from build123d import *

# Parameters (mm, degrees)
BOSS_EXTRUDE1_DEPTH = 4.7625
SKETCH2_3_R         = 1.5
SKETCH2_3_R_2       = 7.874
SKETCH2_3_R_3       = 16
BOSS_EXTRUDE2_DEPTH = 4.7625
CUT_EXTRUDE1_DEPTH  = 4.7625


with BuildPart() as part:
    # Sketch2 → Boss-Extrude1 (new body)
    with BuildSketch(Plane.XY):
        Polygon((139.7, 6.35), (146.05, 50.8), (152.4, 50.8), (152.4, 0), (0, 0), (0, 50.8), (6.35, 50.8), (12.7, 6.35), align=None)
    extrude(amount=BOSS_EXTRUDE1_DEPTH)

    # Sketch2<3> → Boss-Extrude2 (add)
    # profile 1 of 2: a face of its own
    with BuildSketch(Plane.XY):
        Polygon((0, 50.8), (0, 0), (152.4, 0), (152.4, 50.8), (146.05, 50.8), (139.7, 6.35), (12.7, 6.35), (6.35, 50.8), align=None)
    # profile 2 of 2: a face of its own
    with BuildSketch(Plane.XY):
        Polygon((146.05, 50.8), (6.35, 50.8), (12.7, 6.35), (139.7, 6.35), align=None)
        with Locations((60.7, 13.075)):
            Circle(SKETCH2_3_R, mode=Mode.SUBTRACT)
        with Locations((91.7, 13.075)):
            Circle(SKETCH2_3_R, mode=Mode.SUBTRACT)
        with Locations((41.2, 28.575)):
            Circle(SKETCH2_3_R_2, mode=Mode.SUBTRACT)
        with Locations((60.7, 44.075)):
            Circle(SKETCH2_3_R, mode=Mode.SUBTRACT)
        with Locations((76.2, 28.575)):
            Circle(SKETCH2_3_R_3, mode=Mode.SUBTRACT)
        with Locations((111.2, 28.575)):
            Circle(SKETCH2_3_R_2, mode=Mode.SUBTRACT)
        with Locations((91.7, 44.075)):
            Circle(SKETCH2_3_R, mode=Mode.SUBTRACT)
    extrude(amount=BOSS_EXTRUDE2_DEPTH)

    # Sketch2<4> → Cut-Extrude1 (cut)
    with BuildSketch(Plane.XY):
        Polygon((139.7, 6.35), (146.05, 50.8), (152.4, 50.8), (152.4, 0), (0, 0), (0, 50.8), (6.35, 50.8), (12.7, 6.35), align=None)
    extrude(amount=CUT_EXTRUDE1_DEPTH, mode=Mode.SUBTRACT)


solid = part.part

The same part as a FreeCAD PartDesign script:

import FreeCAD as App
import Part
import Sketcher
Q = App.Units.Quantity

doc = App.newDocument("Part")
body = doc.addObject("PartDesign::Body", "Body")

# Sketch on XY plane
sketch1 = body.newObject("Sketcher::SketchObject", "Sketch")
sketch1.AttachmentSupport = (doc.getObject("XY_Plane"), [""])
sketch1.MapMode = "FlatFace"
sketch1.addGeometry(Part.LineSegment(App.Vector(146, 51, 0), App.Vector(140, 6, 0)), False)
sketch1.addGeometry(Part.LineSegment(App.Vector(140, 6, 0), App.Vector(13, 6, 0)), False)
sketch1.addGeometry(Part.LineSegment(App.Vector(13, 6, 0), App.Vector(6, 51, 0)), False)
sketch1.addGeometry(Part.LineSegment(App.Vector(6, 51, 0), App.Vector(0, 51, 0)), False)
sketch1.addGeometry(Part.LineSegment(App.Vector(0, 51, 0), App.Vector(0, 0, 0)), False)
sketch1.addGeometry(Part.LineSegment(App.Vector(0, 0, 0), App.Vector(152, 0, 0)), False)
sketch1.addGeometry(Part.LineSegment(App.Vector(152, 0, 0), App.Vector(152, 51, 0)), False)
sketch1.addGeometry(Part.LineSegment(App.Vector(152, 51, 0), App.Vector(146, 51, 0)), False)
sketch1.addConstraint(Sketcher.Constraint("Coincident", 0, 2, 1, 1))
sketch1.addConstraint(Sketcher.Constraint("Coincident", 1, 2, 2, 1))
sketch1.addConstraint(Sketcher.Constraint("Coincident", 2, 2, 3, 1))
sketch1.addConstraint(Sketcher.Constraint("Coincident", 3, 2, 4, 1))
sketch1.addConstraint(Sketcher.Constraint("Coincident", 4, 2, 5, 1))
sketch1.addConstraint(Sketcher.Constraint("Coincident", 5, 2, 6, 1))
sketch1.addConstraint(Sketcher.Constraint("Coincident", 6, 2, 7, 1))
sketch1.addConstraint(Sketcher.Constraint("Coincident", 7, 2, 0, 1))
sketch1.addConstraint(Sketcher.Constraint("Horizontal", 1))
sketch1.addConstraint(Sketcher.Constraint("Horizontal", 3))
sketch1.addConstraint(Sketcher.Constraint("Vertical", 4))
sketch1.addConstraint(Sketcher.Constraint("Horizontal", 5))
sketch1.addConstraint(Sketcher.Constraint("Vertical", 6))
sketch1.addConstraint(Sketcher.Constraint("Horizontal", 7))
sketch1.addConstraint(Sketcher.Constraint("Coincident", 4, 2, -1, 1))
sketch1.addConstraint(Sketcher.Constraint("Horizontal", 3, 2, 6, 2))
sketch1.addConstraint(Sketcher.Constraint("Equal", 3, 7))
sketch1.addConstraint(Sketcher.Constraint("Equal", 0, 2))
sketch1.addConstraint(Sketcher.Constraint("DistanceX", 1, 2, 1, 1, Q("5 in")))
sketch1.addConstraint(Sketcher.Constraint("DistanceX", 5, 1, 5, 2, Q("6 in")))
sketch1.addConstraint(Sketcher.Constraint("DistanceY", 4, 2, 4, 1, Q("2 in")))
sketch1.addConstraint(Sketcher.Constraint("DistanceX", 3, 2, 3, 1, Q("0.25 in")))
sketch1.addConstraint(Sketcher.Constraint("DistanceY", -1, 1, 0, 2, Q("0.25 in")))
pad1 = body.newObject("PartDesign::Pad", "Pad")
pad1.Profile = sketch1
pad1.Length = Q("0.1875 in")

# Sketch on XY plane
sketch2 = body.newObject("Sketcher::SketchObject", "Sketch001")
sketch2.AttachmentSupport = (doc.getObject("XY_Plane"), [""])
sketch2.MapMode = "FlatFace"
sketch2.addGeometry(Part.LineSegment(App.Vector(0, 50.8, 0), App.Vector(0, 0, 0)), False)
sketch2.addGeometry(Part.LineSegment(App.Vector(0, 0, 0), App.Vector(152.4, 0, 0)), False)
sketch2.addGeometry(Part.LineSegment(App.Vector(152.4, 0, 0), App.Vector(152.4, 50.8, 0)), False)
sketch2.addGeometry(Part.LineSegment(App.Vector(152.4, 50.8, 0), App.Vector(0, 50.8, 0)), False)
sketch2.addGeometry(Part.Circle(App.Vector(91.7, 44.1, 0), App.Vector(0, 0, 1), 1.5), False)
sketch2.addGeometry(Part.Circle(App.Vector(76.2, 28.6, 0), App.Vector(0, 0, 1), 16), False)
sketch2.addGeometry(Part.Circle(App.Vector(111.2, 28.6, 0), App.Vector(0, 0, 1), 7.9), False)
sketch2.addGeometry(Part.Circle(App.Vector(60.7, 13.1, 0), App.Vector(0, 0, 1), 1.5), False)
sketch2.addGeometry(Part.Circle(App.Vector(91.7, 13.1, 0), App.Vector(0, 0, 1), 1.5), False)
sketch2.addGeometry(Part.Circle(App.Vector(41.2, 28.6, 0), App.Vector(0, 0, 1), 7.9), False)
sketch2.addGeometry(Part.Circle(App.Vector(60.7, 44.1, 0), App.Vector(0, 0, 1), 1.5), False)
sketch2.addConstraint(Sketcher.Constraint("Coincident", 0, 2, 1, 1))
sketch2.addConstraint(Sketcher.Constraint("Coincident", 1, 2, 2, 1))
sketch2.addConstraint(Sketcher.Constraint("Coincident", 2, 2, 3, 1))
sketch2.addConstraint(Sketcher.Constraint("Coincident", 3, 2, 0, 1))
sketch2.addConstraint(Sketcher.Constraint("Vertical", 0))
sketch2.addConstraint(Sketcher.Constraint("Horizontal", 1))
sketch2.addConstraint(Sketcher.Constraint("Vertical", 2))
sketch2.addConstraint(Sketcher.Constraint("Horizontal", 3))
sketch2.addConstraint(Sketcher.Constraint("Coincident", 0, 2, -1, 1))
sketch2.addConstraint(Sketcher.Constraint("Equal", 4, 7))
sketch2.addConstraint(Sketcher.Constraint("Equal", 7, 8))
sketch2.addConstraint(Sketcher.Constraint("Equal", 6, 9))
sketch2.addConstraint(Sketcher.Constraint("Equal", 8, 10))
sketch2.addConstraint(Sketcher.Constraint("Horizontal", 5, 3, 6, 3))
sketch2.addConstraint(Sketcher.Constraint("Horizontal", 7, 3, 8, 3))
sketch2.addConstraint(Sketcher.Constraint("Horizontal", 6, 3, 9, 3))
sketch2.addConstraint(Sketcher.Constraint("Horizontal", 4, 3, 10, 3))
sketch2.addConstraint(Sketcher.Constraint("Vertical", 4, 3, 8, 3))
sketch2.addConstraint(Sketcher.Constraint("Vertical", 7, 3, 10, 3))
sketch2.addConstraint(Sketcher.Constraint("Diameter", 6, Q("0.62 in")))
sketch2.addConstraint(Sketcher.Constraint("DistanceX", 1, 1, 1, 2, Q("6 in")))
sketch2.addConstraint(Sketcher.Constraint("DistanceY", 0, 2, 0, 1, Q("2 in")))
sketch2.addConstraint(Sketcher.Constraint("DistanceX", -1, 1, 5, 3, Q("3 in")))
sketch2.addConstraint(Sketcher.Constraint("Diameter", 4, 3.0))
sketch2.addConstraint(Sketcher.Constraint("Diameter", 5, 32.0))
sketch2.addConstraint(Sketcher.Constraint("DistanceY", -1, 1, 5, 3, Q("1.125 in")))
sketch2.addConstraint(Sketcher.Constraint("DistanceX", -1, 1, 4, 3, 91.7))
sketch2.addConstraint(Sketcher.Constraint("DistanceY", -1, 1, 4, 3, 44.075))
sketch2.addConstraint(Sketcher.Constraint("DistanceX", -1, 1, 6, 3, 111.2))
sketch2.addConstraint(Sketcher.Constraint("DistanceX", -1, 1, 7, 3, 60.7))
sketch2.addConstraint(Sketcher.Constraint("DistanceY", -1, 1, 7, 3, 13.075))
sketch2.addConstraint(Sketcher.Constraint("DistanceX", -1, 1, 9, 3, 41.2))
pad2 = body.newObject("PartDesign::Pad", "Pad001")
pad2.Profile = sketch2
pad2.Length = Q("0.1875 in")

# Sketch on XY plane
sketch3 = body.newObject("Sketcher::SketchObject", "Sketch002")
sketch3.AttachmentSupport = (doc.getObject("XY_Plane"), [""])
sketch3.MapMode = "FlatFace"
sketch3.addGeometry(Part.LineSegment(App.Vector(146, 51, 0), App.Vector(140, 6, 0)), False)
sketch3.addGeometry(Part.LineSegment(App.Vector(140, 6, 0), App.Vector(13, 6, 0)), False)
sketch3.addGeometry(Part.LineSegment(App.Vector(13, 6, 0), App.Vector(6, 51, 0)), False)
sketch3.addGeometry(Part.LineSegment(App.Vector(6, 51, 0), App.Vector(0, 51, 0)), False)
sketch3.addGeometry(Part.LineSegment(App.Vector(0, 51, 0), App.Vector(0, 0, 0)), False)
sketch3.addGeometry(Part.LineSegment(App.Vector(0, 0, 0), App.Vector(152, 0, 0)), False)
sketch3.addGeometry(Part.LineSegment(App.Vector(152, 0, 0), App.Vector(152, 51, 0)), False)
sketch3.addGeometry(Part.LineSegment(App.Vector(152, 51, 0), App.Vector(146, 51, 0)), False)
sketch3.addConstraint(Sketcher.Constraint("Coincident", 0, 2, 1, 1))
sketch3.addConstraint(Sketcher.Constraint("Coincident", 1, 2, 2, 1))
sketch3.addConstraint(Sketcher.Constraint("Coincident", 2, 2, 3, 1))
sketch3.addConstraint(Sketcher.Constraint("Coincident", 3, 2, 4, 1))
sketch3.addConstraint(Sketcher.Constraint("Coincident", 4, 2, 5, 1))
sketch3.addConstraint(Sketcher.Constraint("Coincident", 5, 2, 6, 1))
sketch3.addConstraint(Sketcher.Constraint("Coincident", 6, 2, 7, 1))
sketch3.addConstraint(Sketcher.Constraint("Coincident", 7, 2, 0, 1))
sketch3.addConstraint(Sketcher.Constraint("Horizontal", 1))
sketch3.addConstraint(Sketcher.Constraint("Horizontal", 3))
sketch3.addConstraint(Sketcher.Constraint("Vertical", 4))
sketch3.addConstraint(Sketcher.Constraint("Horizontal", 5))
sketch3.addConstraint(Sketcher.Constraint("Vertical", 6))
sketch3.addConstraint(Sketcher.Constraint("Horizontal", 7))
sketch3.addConstraint(Sketcher.Constraint("Coincident", 4, 2, -1, 1))
sketch3.addConstraint(Sketcher.Constraint("Horizontal", 3, 2, 6, 2))
sketch3.addConstraint(Sketcher.Constraint("Equal", 3, 7))
sketch3.addConstraint(Sketcher.Constraint("Equal", 0, 2))
sketch3.addConstraint(Sketcher.Constraint("DistanceX", 1, 2, 1, 1, Q("5 in")))
sketch3.addConstraint(Sketcher.Constraint("DistanceX", 5, 1, 5, 2, Q("6 in")))
sketch3.addConstraint(Sketcher.Constraint("DistanceY", 4, 2, 4, 1, Q("2 in")))
sketch3.addConstraint(Sketcher.Constraint("DistanceX", 3, 2, 3, 1, Q("0.25 in")))
sketch3.addConstraint(Sketcher.Constraint("DistanceY", -1, 1, 0, 2, Q("0.25 in")))
pocket1 = body.newObject("PartDesign::Pocket", "Pocket")
pocket1.Profile = sketch3
pocket1.Length = Q("0.1875 in")
pocket1.Reversed = True

doc.recompute()
